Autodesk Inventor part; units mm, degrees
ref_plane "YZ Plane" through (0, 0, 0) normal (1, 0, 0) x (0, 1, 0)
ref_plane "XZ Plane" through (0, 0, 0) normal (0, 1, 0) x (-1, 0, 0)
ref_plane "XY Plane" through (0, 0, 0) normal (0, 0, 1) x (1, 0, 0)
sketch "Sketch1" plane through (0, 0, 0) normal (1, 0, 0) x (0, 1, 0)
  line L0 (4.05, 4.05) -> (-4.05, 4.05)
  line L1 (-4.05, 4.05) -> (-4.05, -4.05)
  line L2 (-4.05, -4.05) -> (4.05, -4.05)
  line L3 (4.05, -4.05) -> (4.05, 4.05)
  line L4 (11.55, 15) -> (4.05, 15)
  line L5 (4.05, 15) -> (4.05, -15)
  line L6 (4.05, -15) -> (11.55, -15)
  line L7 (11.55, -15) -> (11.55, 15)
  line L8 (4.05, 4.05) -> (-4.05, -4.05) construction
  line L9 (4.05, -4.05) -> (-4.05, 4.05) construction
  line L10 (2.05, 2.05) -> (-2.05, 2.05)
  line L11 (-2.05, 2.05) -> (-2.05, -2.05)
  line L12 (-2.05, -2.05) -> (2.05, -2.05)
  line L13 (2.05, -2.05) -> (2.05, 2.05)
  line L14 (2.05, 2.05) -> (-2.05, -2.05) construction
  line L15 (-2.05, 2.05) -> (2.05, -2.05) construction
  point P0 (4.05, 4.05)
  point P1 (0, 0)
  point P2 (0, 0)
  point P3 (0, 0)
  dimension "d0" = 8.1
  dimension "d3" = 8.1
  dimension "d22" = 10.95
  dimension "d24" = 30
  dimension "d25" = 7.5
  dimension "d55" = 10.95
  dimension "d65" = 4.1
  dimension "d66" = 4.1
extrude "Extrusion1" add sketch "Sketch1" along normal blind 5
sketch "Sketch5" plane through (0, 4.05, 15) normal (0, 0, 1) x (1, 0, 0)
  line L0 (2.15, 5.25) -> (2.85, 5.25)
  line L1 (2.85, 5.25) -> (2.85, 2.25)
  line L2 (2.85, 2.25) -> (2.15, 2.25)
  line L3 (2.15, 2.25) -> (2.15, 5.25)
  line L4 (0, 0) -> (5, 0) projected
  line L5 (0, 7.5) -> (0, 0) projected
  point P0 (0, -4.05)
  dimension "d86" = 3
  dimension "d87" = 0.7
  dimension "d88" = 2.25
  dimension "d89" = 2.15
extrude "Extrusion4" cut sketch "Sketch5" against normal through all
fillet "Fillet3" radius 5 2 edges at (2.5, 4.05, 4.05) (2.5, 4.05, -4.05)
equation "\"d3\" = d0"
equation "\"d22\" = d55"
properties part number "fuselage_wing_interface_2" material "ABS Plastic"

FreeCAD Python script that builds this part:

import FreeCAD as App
import Part
import Sketcher
from FreeCAD import Vector
Q = App.Units.Quantity


def edges_at(feature, points):
    """Names of the edges that pass closest to the given points."""
    edges = feature.Shape.Edges
    near = lambda p: min(range(len(edges)), key=lambda i: edges[i].distToShape(Part.Vertex(*p))[0])
    return sorted({f"Edge{near(p) + 1}" for p in points})

doc = App.newDocument("Part")
body = doc.addObject("PartDesign::Body", "Body")

sketch1 = body.newObject("Sketcher::SketchObject", "Sketch")
sketch1.AttachmentSupport = (doc.getObject("YZ_Plane"), [""])
sketch1.MapMode = "FlatFace"
sketch1.addGeometry([
    Part.LineSegment(Vector(-4, -4, 0), Vector(4, -4, 0)),
    Part.LineSegment(Vector(4, -4, 0), Vector(4, -15, 0)),
    Part.LineSegment(Vector(4, -15, 0), Vector(11.6, -15, 0)),
    Part.LineSegment(Vector(11.6, -15, 0), Vector(11.6, 15, 0)),
    Part.LineSegment(Vector(11.6, 15, 0), Vector(4, 15, 0)),
    Part.LineSegment(Vector(4, 15, 0), Vector(4, 4, 0)),
    Part.LineSegment(Vector(4, 4, 0), Vector(-4, 4, 0)),
    Part.LineSegment(Vector(-4, 4, 0), Vector(-4, -4, 0)),
    Part.LineSegment(Vector(-2, 2, 0), Vector(2, 2, 0)),
    Part.LineSegment(Vector(2, 2, 0), Vector(2, -2, 0)),
    Part.LineSegment(Vector(2, -2, 0), Vector(-2, -2, 0)),
    Part.LineSegment(Vector(-2, -2, 0), Vector(-2, 2, 0)),
], False)
sketch1.addConstraint([
    Sketcher.Constraint("Coincident", 0, 2, 1, 1),
    Sketcher.Constraint("Coincident", 1, 2, 2, 1),
    Sketcher.Constraint("Coincident", 2, 2, 3, 1),
    Sketcher.Constraint("Coincident", 3, 2, 4, 1),
    Sketcher.Constraint("Coincident", 4, 2, 5, 1),
    Sketcher.Constraint("Coincident", 5, 2, 6, 1),
    Sketcher.Constraint("Coincident", 6, 2, 7, 1),
    Sketcher.Constraint("Coincident", 7, 2, 0, 1),
    Sketcher.Constraint("Coincident", 8, 2, 9, 1),
    Sketcher.Constraint("Coincident", 9, 2, 10, 1),
    Sketcher.Constraint("Coincident", 10, 2, 11, 1),
    Sketcher.Constraint("Coincident", 11, 2, 8, 1),
    Sketcher.Constraint("Horizontal", 0),
    Sketcher.Constraint("Vertical", 1),
    Sketcher.Constraint("Horizontal", 2),
    Sketcher.Constraint("Vertical", 3),
    Sketcher.Constraint("Horizontal", 4),
    Sketcher.Constraint("Vertical", 5),
    Sketcher.Constraint("Horizontal", 6),
    Sketcher.Constraint("Vertical", 7),
    Sketcher.Constraint("Horizontal", 8),
    Sketcher.Constraint("Vertical", 9),
    Sketcher.Constraint("Horizontal", 10),
    Sketcher.Constraint("Vertical", 11),
    Sketcher.Constraint("Symmetric", 0, 2, 6, 2, -1, 1),
    Sketcher.Constraint("Symmetric", 8, 2, 10, 2, -1, 1),
    Sketcher.Constraint("Symmetric", 1, 2, 4, 2, -1),
    Sketcher.Constraint("Equal", 6, 7),
    Sketcher.Constraint("Equal", 10, 9),
    Sketcher.Constraint("DistanceY", 3, 1, 3, 2, Q("30 mm")),
    Sketcher.Constraint("DistanceX", 0, 1, 0, 2, Q("8.1 mm")),
    Sketcher.Constraint("DistanceX", 2, 1, 2, 2, Q("7.5 mm")),
    Sketcher.Constraint("DistanceX", 8, 1, 8, 2, Q("4.1 mm")),
])
pad1 = body.newObject("PartDesign::Pad", "Pad")
pad1.Profile = sketch1
pad1.Length = 5

sketch2 = body.newObject("Sketcher::SketchObject", "Sketch001")
sketch2.AttachmentSupport = (doc.getObject("XY_Plane"), [""])
sketch2.MapMode = "FlatFace"
sketch2.AttachmentOffset = App.Placement(Vector(0, 0, 15), App.Rotation())
sketch2.addGeometry([
    Part.LineSegment(Vector(2.9, 9.3, 0), Vector(2.1, 9.3, 0)),
    Part.LineSegment(Vector(2.1, 9.3, 0), Vector(2.1, 6.3, 0)),
    Part.LineSegment(Vector(2.1, 6.3, 0), Vector(2.9, 6.3, 0)),
    Part.LineSegment(Vector(2.9, 6.3, 0), Vector(2.9, 9.3, 0)),
], False)
sketch2.addConstraint([
    Sketcher.Constraint("Coincident", 0, 2, 1, 1),
    Sketcher.Constraint("Coincident", 1, 2, 2, 1),
    Sketcher.Constraint("Coincident", 2, 2, 3, 1),
    Sketcher.Constraint("Coincident", 3, 2, 0, 1),
    Sketcher.Constraint("Horizontal", 0),
    Sketcher.Constraint("Vertical", 1),
    Sketcher.Constraint("Horizontal", 2),
    Sketcher.Constraint("Vertical", 3),
    Sketcher.Constraint("DistanceY", 1, 2, 1, 1, Q("3 mm")),
    Sketcher.Constraint("DistanceX", 0, 2, 0, 1, Q("0.7 mm")),
    Sketcher.Constraint("DistanceX", -1, 1, 0, 2, Q("2.15 mm")),
    Sketcher.Constraint("DistanceY", -1, 1, 0, 2, Q("9.3 mm")),
])
pocket1 = body.newObject("PartDesign::Pocket", "Pocket")
pocket1.Profile = sketch2
pocket1.Type = "ThroughAll"
doc.recompute()

fillet = body.newObject("PartDesign::Fillet", "Fillet")
fillet.Base = (pocket1, edges_at(pocket1, [(2.5, 4.05, 4.05), (2.5, 4.05, -4.05)]))
fillet.Radius = 5

doc.recompute()
